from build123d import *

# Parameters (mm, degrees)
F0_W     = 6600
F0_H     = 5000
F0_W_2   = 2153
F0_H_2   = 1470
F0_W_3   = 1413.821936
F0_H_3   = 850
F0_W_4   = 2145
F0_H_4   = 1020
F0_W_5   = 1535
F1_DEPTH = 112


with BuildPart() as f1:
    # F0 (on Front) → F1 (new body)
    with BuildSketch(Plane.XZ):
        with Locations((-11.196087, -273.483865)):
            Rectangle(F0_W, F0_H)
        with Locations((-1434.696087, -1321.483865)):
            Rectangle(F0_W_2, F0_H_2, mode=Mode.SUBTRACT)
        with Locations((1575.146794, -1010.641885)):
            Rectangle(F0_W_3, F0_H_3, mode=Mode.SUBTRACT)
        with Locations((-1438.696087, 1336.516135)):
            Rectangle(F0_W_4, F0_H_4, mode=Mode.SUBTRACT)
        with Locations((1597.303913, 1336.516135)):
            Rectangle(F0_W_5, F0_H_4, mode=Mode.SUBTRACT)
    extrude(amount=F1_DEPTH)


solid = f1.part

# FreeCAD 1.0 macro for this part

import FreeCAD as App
import Part
import Sketcher
from FreeCAD import Vector
Q = App.Units.Quantity

doc = App.newDocument("Part")
body = doc.addObject("PartDesign::Body", "Body")

# Sketch on XZ plane
sketch1 = body.newObject("Sketcher::SketchObject", "Sketch")
sketch1.AttachmentSupport = (doc.getObject("XZ_Plane"), [""])
sketch1.MapMode = "FlatFace"
sketch1.addGeometry([
    Part.LineSegment(Vector(-3311, 2227, 0), Vector(-3311, -2773, 0)),  # 0
    Part.LineSegment(Vector(-3311, -2773, 0), Vector(3289, -2773, 0)),  # 1
    Part.LineSegment(Vector(3289, -2773, 0), Vector(3289, 2227, 0)),  # 2
    Part.LineSegment(Vector(3289, 2227, 0), Vector(-3311, 2227, 0)),  # 3
    Part.LineSegment(Vector(-358, -2056, 0), Vector(-2511, -2056, 0)),  # 4
    Part.LineSegment(Vector(-2511, -2056, 0), Vector(-2511, -586, 0)),  # 5
    Part.LineSegment(Vector(-2511, -586, 0), Vector(-358, -586, 0)),  # 6
    Part.LineSegment(Vector(-358, -586, 0), Vector(-358, -2056, 0)),  # 7
    Part.LineSegment(Vector(2282, -1436, 0), Vector(868, -1436, 0)),  # 8
    Part.LineSegment(Vector(868, -1436, 0), Vector(868, -586, 0)),  # 9
    Part.LineSegment(Vector(868, -586, 0), Vector(2282, -586, 0)),  # 10
    Part.LineSegment(Vector(2282, -586, 0), Vector(2282, -1436, 0)),  # 11
    Part.LineSegment(Vector(-366, 827, 0), Vector(-2511, 827, 0)),  # 12
    Part.LineSegment(Vector(-2511, 827, 0), Vector(-2511, 1847, 0)),  # 13
    Part.LineSegment(Vector(-2511, 1847, 0), Vector(-366, 1847, 0)),  # 14
    Part.LineSegment(Vector(-366, 1847, 0), Vector(-366, 827, 0)),  # 15
    Part.LineSegment(Vector(2365, 827, 0), Vector(830, 827, 0)),  # 16
    Part.LineSegment(Vector(830, 827, 0), Vector(830, 1847, 0)),  # 17
    Part.LineSegment(Vector(830, 1847, 0), Vector(2365, 1847, 0)),  # 18
    Part.LineSegment(Vector(2365, 1847, 0), Vector(2365, 827, 0)),  # 19
], False)
sketch1.addConstraint([
    Sketcher.Constraint("Coincident", 0, 2, 1, 1),
    Sketcher.Constraint("Coincident", 1, 2, 2, 1),
    Sketcher.Constraint("Coincident", 2, 2, 3, 1),
    Sketcher.Constraint("Coincident", 3, 2, 0, 1),
    Sketcher.Constraint("Coincident", 4, 2, 5, 1),
    Sketcher.Constraint("Coincident", 5, 2, 6, 1),
    Sketcher.Constraint("Coincident", 6, 2, 7, 1),
    Sketcher.Constraint("Coincident", 7, 2, 4, 1),
    Sketcher.Constraint("Coincident", 8, 2, 9, 1),
    Sketcher.Constraint("Coincident", 9, 2, 10, 1),
    Sketcher.Constraint("Coincident", 10, 2, 11, 1),
    Sketcher.Constraint("Coincident", 11, 2, 8, 1),
    Sketcher.Constraint("Coincident", 12, 2, 13, 1),
    Sketcher.Constraint("Coincident", 13, 2, 14, 1),
    Sketcher.Constraint("Coincident", 14, 2, 15, 1),
    Sketcher.Constraint("Coincident", 15, 2, 12, 1),
    Sketcher.Constraint("Coincident", 16, 2, 17, 1),
    Sketcher.Constraint("Coincident", 17, 2, 18, 1),
    Sketcher.Constraint("Coincident", 18, 2, 19, 1),
    Sketcher.Constraint("Coincident", 19, 2, 16, 1),
    Sketcher.Constraint("Vertical", 0),
    Sketcher.Constraint("Horizontal", 1),
    Sketcher.Constraint("Vertical", 2),
    Sketcher.Constraint("Horizontal", 3),
    Sketcher.Constraint("Horizontal", 4),
    Sketcher.Constraint("Vertical", 5),
    Sketcher.Constraint("Horizontal", 6),
    Sketcher.Constraint("Vertical", 7),
    Sketcher.Constraint("Horizontal", 8),
    Sketcher.Constraint("Vertical", 9),
    Sketcher.Constraint("Horizontal", 10),
    Sketcher.Constraint("Vertical", 11),
    Sketcher.Constraint("Horizontal", 12),
    Sketcher.Constraint("Vertical", 13),
    Sketcher.Constraint("Horizontal", 14),
    Sketcher.Constraint("Vertical", 15),
    Sketcher.Constraint("Horizontal", 16),
    Sketcher.Constraint("Vertical", 17),
    Sketcher.Constraint("Horizontal", 18),
    Sketcher.Constraint("Vertical", 19),
    Sketcher.Constraint("Horizontal", 15, 2, 16, 2),
    Sketcher.Constraint("Horizontal", 14, 2, 17, 2),
    Sketcher.Constraint("Vertical", 5, 2, 12, 2),
    Sketcher.Constraint("DistanceX", 1, 1, 1, 2, Q("6600 mm")),
    Sketcher.Constraint("DistanceX", 4, 2, 4, 1, Q("2153 mm")),
    Sketcher.Constraint("DistanceX", 12, 2, 12, 1, Q("2145 mm")),
    Sketcher.Constraint("DistanceX", 16, 2, 16, 1, Q("1535 mm")),
    Sketcher.Constraint("DistanceY", 0, 2, 0, 1, Q("5000 mm")),
    Sketcher.Constraint("DistanceY", 5, 1, 5, 2, Q("1470 mm")),
    Sketcher.Constraint("DistanceY", 9, 1, 9, 2, Q("850 mm")),
    Sketcher.Constraint("DistanceY", 13, 1, 13, 2, Q("1020 mm")),
    Sketcher.Constraint("DistanceX", 0, 2, 4, 2, Q("800 mm")),
    Sketcher.Constraint("DistanceY", 0, 2, 4, 2, Q("717 mm")),
    Sketcher.Constraint("DistanceY", 5, 2, 12, 2, Q("1413 mm")),
    Sketcher.Constraint("DistanceX", 15, 2, 16, 2, Q("1196 mm")),
    Sketcher.Constraint("DistanceX", 8, 2, 8, 1, Q("1413.821936 mm")),
    Sketcher.Constraint("DistanceX", -1, 1, 10, 2, Q("2282.057762 mm")),
    Sketcher.Constraint("DistanceY", 7, 2, 8, 2, Q("620.84198 mm")),
    Sketcher.Constraint("DistanceX", 10, 2, 1, 2, Q("1006.746151 mm")),
    Sketcher.Constraint("DistanceY", 0, 2, -1, 1, Q("2773.483865 mm")),
])
pad1 = body.newObject("PartDesign::Pad", "Pad")
pad1.Profile = sketch1
pad1.Length = 112

doc.recompute()
